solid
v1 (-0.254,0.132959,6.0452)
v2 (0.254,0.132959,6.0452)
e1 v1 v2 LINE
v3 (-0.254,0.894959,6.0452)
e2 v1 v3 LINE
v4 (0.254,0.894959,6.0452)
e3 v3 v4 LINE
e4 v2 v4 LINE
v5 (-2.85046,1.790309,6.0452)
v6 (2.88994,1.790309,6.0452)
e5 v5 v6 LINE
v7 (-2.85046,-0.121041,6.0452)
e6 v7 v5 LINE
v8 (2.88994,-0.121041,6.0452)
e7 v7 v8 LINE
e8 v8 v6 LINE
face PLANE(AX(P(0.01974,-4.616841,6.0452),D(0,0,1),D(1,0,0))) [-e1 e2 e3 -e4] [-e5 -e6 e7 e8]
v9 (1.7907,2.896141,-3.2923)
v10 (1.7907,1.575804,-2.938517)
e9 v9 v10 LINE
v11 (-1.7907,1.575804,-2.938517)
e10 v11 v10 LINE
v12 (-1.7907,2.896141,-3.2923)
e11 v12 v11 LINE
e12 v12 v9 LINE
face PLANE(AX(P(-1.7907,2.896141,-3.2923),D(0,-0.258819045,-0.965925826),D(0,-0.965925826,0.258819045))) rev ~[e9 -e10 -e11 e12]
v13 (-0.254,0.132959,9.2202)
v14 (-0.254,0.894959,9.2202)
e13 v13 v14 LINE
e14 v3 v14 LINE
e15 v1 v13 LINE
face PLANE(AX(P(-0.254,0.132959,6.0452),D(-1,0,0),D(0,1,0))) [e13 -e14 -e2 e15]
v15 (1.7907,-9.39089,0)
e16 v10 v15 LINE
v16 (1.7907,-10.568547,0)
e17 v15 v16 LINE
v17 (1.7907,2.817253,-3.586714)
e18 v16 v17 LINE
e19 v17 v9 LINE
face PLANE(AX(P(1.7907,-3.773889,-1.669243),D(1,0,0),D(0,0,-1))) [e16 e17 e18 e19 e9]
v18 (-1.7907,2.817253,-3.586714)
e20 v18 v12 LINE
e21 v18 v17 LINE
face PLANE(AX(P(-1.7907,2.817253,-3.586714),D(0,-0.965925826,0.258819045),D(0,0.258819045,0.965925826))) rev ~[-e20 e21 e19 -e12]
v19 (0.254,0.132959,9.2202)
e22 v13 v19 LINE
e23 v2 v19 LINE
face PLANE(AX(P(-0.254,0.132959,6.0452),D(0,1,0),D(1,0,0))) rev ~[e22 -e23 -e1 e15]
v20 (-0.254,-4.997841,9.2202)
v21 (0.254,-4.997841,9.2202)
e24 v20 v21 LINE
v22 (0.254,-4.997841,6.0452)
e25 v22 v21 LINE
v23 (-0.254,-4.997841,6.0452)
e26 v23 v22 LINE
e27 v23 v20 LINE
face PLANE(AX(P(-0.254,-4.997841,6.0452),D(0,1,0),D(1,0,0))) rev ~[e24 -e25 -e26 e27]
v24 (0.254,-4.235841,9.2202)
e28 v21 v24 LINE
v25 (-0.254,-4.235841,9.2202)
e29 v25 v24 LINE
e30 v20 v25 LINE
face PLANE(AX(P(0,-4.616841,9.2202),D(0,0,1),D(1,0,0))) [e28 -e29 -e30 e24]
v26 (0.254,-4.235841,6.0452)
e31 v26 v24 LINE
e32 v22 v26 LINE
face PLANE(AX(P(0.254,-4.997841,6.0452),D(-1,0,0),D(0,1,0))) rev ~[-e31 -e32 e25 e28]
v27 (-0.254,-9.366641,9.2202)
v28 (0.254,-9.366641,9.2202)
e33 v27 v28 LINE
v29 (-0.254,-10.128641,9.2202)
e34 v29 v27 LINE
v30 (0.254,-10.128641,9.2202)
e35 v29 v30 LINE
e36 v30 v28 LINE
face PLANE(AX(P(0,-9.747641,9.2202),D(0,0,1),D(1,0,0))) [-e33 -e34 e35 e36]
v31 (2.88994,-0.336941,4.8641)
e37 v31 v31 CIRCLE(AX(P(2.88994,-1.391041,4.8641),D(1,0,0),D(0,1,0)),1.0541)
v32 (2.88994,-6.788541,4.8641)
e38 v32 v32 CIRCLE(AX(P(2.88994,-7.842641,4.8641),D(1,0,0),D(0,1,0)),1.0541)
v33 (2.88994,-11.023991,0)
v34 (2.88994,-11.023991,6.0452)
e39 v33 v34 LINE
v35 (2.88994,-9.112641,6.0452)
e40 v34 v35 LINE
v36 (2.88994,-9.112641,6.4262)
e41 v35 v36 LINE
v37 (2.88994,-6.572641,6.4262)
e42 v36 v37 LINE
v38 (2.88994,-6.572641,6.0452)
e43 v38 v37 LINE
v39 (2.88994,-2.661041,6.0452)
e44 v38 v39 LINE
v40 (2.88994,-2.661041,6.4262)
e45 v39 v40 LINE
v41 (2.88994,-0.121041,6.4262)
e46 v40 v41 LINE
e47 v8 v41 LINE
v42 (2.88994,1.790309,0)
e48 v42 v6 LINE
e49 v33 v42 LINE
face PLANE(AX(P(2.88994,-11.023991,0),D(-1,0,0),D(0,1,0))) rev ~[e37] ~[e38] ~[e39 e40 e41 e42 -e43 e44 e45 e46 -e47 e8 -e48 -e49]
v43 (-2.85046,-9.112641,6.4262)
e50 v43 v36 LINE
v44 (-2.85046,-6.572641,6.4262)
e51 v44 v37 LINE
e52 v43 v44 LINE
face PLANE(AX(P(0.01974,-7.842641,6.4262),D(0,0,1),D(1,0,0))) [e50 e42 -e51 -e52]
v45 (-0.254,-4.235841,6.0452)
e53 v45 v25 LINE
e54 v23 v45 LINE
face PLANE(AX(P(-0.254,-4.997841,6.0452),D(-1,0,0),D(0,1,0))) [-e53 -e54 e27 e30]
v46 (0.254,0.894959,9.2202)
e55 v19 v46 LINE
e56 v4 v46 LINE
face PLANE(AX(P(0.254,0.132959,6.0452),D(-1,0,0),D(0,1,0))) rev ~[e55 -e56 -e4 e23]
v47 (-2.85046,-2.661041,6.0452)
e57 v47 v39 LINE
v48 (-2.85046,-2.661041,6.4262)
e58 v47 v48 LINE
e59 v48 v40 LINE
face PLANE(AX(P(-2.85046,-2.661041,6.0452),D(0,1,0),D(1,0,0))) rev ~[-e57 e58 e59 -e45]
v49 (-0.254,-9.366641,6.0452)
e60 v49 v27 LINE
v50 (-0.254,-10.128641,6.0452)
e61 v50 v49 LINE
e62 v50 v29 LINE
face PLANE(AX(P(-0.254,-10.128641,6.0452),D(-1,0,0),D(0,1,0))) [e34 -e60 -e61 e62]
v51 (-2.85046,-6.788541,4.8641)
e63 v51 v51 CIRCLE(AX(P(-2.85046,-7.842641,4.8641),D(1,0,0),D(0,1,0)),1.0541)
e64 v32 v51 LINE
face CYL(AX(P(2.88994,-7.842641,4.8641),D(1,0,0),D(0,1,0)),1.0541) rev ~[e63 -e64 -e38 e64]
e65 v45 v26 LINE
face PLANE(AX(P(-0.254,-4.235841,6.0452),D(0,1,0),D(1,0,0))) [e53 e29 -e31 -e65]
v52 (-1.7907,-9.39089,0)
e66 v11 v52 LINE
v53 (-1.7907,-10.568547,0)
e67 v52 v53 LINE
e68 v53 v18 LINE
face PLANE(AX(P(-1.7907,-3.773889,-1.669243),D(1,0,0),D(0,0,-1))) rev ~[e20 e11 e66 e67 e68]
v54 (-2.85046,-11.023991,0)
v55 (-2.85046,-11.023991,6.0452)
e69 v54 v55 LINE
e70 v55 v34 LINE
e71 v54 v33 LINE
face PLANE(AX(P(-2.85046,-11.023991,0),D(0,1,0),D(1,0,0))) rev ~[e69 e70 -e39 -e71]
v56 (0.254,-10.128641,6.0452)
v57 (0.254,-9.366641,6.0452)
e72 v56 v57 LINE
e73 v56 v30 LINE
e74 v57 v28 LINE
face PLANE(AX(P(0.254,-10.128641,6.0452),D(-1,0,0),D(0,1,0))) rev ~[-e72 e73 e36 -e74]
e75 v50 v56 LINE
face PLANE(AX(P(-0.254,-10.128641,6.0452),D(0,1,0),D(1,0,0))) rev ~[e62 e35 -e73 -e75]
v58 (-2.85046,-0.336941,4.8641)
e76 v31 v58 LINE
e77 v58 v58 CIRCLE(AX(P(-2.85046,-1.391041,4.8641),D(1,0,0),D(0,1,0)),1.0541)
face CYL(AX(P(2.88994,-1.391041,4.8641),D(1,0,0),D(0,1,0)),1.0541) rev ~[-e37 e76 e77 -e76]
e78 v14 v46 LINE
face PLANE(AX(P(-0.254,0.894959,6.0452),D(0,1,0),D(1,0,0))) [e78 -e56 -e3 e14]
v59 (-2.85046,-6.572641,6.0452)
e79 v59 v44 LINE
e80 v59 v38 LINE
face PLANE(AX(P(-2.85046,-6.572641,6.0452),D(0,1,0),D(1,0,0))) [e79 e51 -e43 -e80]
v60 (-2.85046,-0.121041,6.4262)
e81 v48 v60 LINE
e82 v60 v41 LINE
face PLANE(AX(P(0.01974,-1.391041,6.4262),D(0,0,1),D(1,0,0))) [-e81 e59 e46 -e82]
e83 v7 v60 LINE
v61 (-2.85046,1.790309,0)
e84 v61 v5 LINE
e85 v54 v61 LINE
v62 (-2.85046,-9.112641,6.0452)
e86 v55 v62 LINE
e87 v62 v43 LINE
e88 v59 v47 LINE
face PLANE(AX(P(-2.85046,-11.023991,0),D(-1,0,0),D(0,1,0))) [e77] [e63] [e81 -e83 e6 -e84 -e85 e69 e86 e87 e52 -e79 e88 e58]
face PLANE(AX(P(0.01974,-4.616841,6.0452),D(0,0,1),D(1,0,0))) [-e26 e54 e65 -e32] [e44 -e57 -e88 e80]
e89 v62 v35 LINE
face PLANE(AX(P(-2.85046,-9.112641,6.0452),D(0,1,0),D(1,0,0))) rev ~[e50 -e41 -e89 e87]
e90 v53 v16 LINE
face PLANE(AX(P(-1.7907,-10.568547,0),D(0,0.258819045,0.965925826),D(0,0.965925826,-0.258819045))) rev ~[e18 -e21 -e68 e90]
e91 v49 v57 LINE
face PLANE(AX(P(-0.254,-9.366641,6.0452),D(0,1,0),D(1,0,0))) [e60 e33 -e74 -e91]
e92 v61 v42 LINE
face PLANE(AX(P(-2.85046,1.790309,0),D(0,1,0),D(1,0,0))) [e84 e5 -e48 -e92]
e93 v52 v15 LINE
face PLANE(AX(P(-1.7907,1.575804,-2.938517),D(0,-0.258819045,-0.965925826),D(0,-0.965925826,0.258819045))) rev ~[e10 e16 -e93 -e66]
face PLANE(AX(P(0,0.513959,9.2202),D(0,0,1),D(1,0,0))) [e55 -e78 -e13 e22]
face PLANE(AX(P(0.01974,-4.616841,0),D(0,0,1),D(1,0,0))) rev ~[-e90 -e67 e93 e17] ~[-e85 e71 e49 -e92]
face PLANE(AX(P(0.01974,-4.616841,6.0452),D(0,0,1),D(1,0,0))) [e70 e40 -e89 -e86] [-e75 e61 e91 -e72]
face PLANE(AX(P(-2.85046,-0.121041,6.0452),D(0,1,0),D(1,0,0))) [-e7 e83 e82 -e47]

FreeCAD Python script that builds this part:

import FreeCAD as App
import Part
import Sketcher
Q = App.Units.Quantity


def add_polygon(sketch, points):
    """Adds a closed chain of lines whose ends are joined by coincident constraints."""
    first, n = sketch.GeometryCount, len(points)
    for a, b in zip(points, points[1:] + points[:1]):
        sketch.addGeometry(Part.LineSegment(App.Vector(*a, 0), App.Vector(*b, 0)), False)
    for i in range(n):
        sketch.addConstraint(Sketcher.Constraint("Coincident", first + i, 2, first + (i + 1) % n, 1))

doc = App.newDocument("Part")
params = doc.addObject("Spreadsheet::Sheet", "Params")
for row, (alias, value) in enumerate([
    ("sketch1_width", "0.226 in"),
    ("pad1_length", "0.238 in"),
    ("sketch2_width", "0.02 in"),
    ("sketch2_height", "0.03 in"),
    ("pad2_length", "0.125 in"),
    ("sketch3_length", "0.012 in"),
    ("pad3_length", "0.141 in"),
    ("sketch4_height", "0.1 in"),
    ("sketch4_width", "0.226 in"),
    ("pad4_length", "0.015 in"),
    ("sketch5_diameter", "0.083 in"),
    ("pocket1_length", "0.35 in"),
], start=1):
    params.set(f"A{row}", alias)
    params.set(f"B{row}", "=" + value)
    params.setAlias(f"B{row}", alias)

body = doc.addObject("PartDesign::Body", "Body")

sketch1 = doc.addObject("Sketcher::SketchObject", "Sketch")
body.addObject(sketch1)
sketch1.AttachmentSupport = (doc.XY_Plane, [""])
sketch1.MapMode = "FlatFace"
add_polygon(sketch1, [(-3, 2), (-3, -11), (3, -11), (3, 2)])
sketch1.addConstraint([
    Sketcher.Constraint("Vertical", 0),
    Sketcher.Constraint("Horizontal", 1),
    Sketcher.Constraint("Vertical", 2),
    Sketcher.Constraint("Horizontal", 3),
    Sketcher.Constraint("DistanceX", 1, 1, 1, 2, Q("0.226 in")),
    Sketcher.Constraint("DistanceY", 0, 2, 0, 1, Q("0.5045 in")),
    Sketcher.Constraint("DistanceX", 0, 2, -1, 1, Q("2.85046 mm")),
    Sketcher.Constraint("DistanceY", 0, 2, -1, 1, Q("11.023991 mm")),
])
sketch1.setExpression("Constraints[8]", "Params.sketch1_width")
pad1 = doc.addObject("PartDesign::Pad", "Pad")
body.addObject(pad1)
pad1.Profile = sketch1
pad1.setExpression("Length", "Params.pad1_length")

sketch2 = doc.addObject("Sketcher::SketchObject", "Sketch001")
body.addObject(sketch2)
sketch2.AttachmentSupport = (doc.XY_Plane, [""])
sketch2.MapMode = "FlatFace"
sketch2.AttachmentOffset = App.Placement(App.Vector(0, 0, 0.238 * 25.4), App.Rotation())
add_polygon(sketch2, [(-0.3, -4.2), (-0.3, -5), (0.3, -5), (0.3, -4.2)])
add_polygon(sketch2, [(-0.3, 0.9), (-0.3, 0.1), (0.3, 0.1), (0.3, 0.9)])
add_polygon(sketch2, [(-0.3, -9.4), (-0.3, -10.1), (0.3, -10.1), (0.3, -9.4)])
sketch2.addConstraint([
    Sketcher.Constraint("Vertical", 0),
    Sketcher.Constraint("Horizontal", 1),
    Sketcher.Constraint("Vertical", 2),
    Sketcher.Constraint("Horizontal", 3),
    Sketcher.Constraint("Vertical", 4),
    Sketcher.Constraint("Horizontal", 5),
    Sketcher.Constraint("Vertical", 6),
    Sketcher.Constraint("Horizontal", 7),
    Sketcher.Constraint("Vertical", 8),
    Sketcher.Constraint("Horizontal", 9),
    Sketcher.Constraint("Vertical", 10),
    Sketcher.Constraint("Horizontal", 11),
    Sketcher.Constraint("Vertical", 3, 2, 4, 2),
    Sketcher.Constraint("Vertical", 2, 2, 5, 2),
    Sketcher.Constraint("Vertical", 7, 2, 8, 2),
    Sketcher.Constraint("Vertical", 6, 2, 9, 2),
    Sketcher.Constraint("Equal", 2, 4),
    Sketcher.Constraint("Equal", 6, 8),
    Sketcher.Constraint("DistanceX", 1, 1, 1, 2, Q("0.02 in")),
    Sketcher.Constraint("DistanceY", 0, 2, 0, 1, Q("0.03 in")),
    Sketcher.Constraint("DistanceX", 0, 2, -1, 1, Q("0.01 in")),
    Sketcher.Constraint("DistanceY", 3, 2, 4, 2, Q("0.172 in")),
    Sketcher.Constraint("DistanceY", 8, 2, 0, 2, Q("0.202 in")),
    Sketcher.Constraint("DistanceY", 0, 2, -1, 1, Q("4.997841 mm")),
])
sketch2.setExpression("Constraints[30]", "Params.sketch2_width")
sketch2.setExpression("Constraints[31]", "Params.sketch2_height")
pad2 = doc.addObject("PartDesign::Pad", "Pad001")
body.addObject(pad2)
pad2.Profile = sketch2
pad2.setExpression("Length", "Params.pad2_length")

sketch3 = doc.addObject("Sketcher::SketchObject", "Sketch002")
body.addObject(sketch3)
sketch3.AttachmentSupport = (doc.YZ_Plane, [""])
sketch3.MapMode = "FlatFace"
sketch3.AttachmentOffset = App.Placement(App.Vector(0, 0, -0.0705 * 25.4), App.Rotation())
add_polygon(sketch3, [(2.82, -3.59), (-10.57, 0), (-9.39, 0), (1.58, -2.94), (2.9, -3.29)])
sketch3.addConstraint([
    Sketcher.Constraint("Horizontal", 1),
    Sketcher.Constraint("PointOnObject", 0, 2, -1),
    Sketcher.Constraint("Parallel", 0, 2),
    Sketcher.Constraint("Parallel", 2, 3),
    Sketcher.Constraint("Perpendicular", 3, 4),
    Sketcher.Constraint("Angle", 0, Q("165 deg")),
    Sketcher.Constraint("Distance", 4, Q("0.012 in")),
    Sketcher.Constraint("DistanceX", 0, 2, 4, 2, Q("0.527 in")),
    Sketcher.Constraint("DistanceX", 1, 2, -1, 1, Q("9.39089 mm")),
    Sketcher.Constraint("DistanceX", 0, 2, 2, 2, Q("12.144351 mm")),
])
sketch3.setExpression("Constraints[11]", "Params.sketch3_length")
pad3 = doc.addObject("PartDesign::Pad", "Pad002")
body.addObject(pad3)
pad3.Profile = sketch3
pad3.setExpression("Length", "Params.pad3_length")

sketch4 = doc.addObject("Sketcher::SketchObject", "Sketch003")
body.addObject(sketch4)
sketch4.AttachmentSupport = (doc.XY_Plane, [""])
sketch4.MapMode = "FlatFace"
sketch4.AttachmentOffset = App.Placement(App.Vector(0, 0, 0.238 * 25.4), App.Rotation())
add_polygon(sketch4, [(-2.9, -0.1), (-2.9, -2.7), (2.9, -2.7), (2.9, -0.1)])
add_polygon(sketch4, [(-2.9, -6.6), (-2.9, -9.1), (2.9, -9.1), (2.9, -6.6)])
sketch4.addConstraint([
    Sketcher.Constraint("Vertical", 0),
    Sketcher.Constraint("Horizontal", 1),
    Sketcher.Constraint("Vertical", 2),
    Sketcher.Constraint("Horizontal", 3),
    Sketcher.Constraint("Vertical", 4),
    Sketcher.Constraint("Horizontal", 5),
    Sketcher.Constraint("Vertical", 6),
    Sketcher.Constraint("Horizontal", 7),
    Sketcher.Constraint("Vertical", 3, 2, 4, 2),
    Sketcher.Constraint("Vertical", 2, 2, 5, 2),
    Sketcher.Constraint("Equal", 2, 4),
    Sketcher.Constraint("DistanceY", 0, 2, 0, 1, Q("0.1 in")),
    Sketcher.Constraint("DistanceX", 1, 1, 1, 2, Q("0.226 in")),
    Sketcher.Constraint("DistanceY", 4, 2, 0, 2, Q("0.254 in")),
    Sketcher.Constraint("DistanceX", 0, 2, -1, 1, Q("2.85046 mm")),
    Sketcher.Constraint("DistanceY", 0, 2, -1, 1, Q("2.661041 mm")),
])
sketch4.setExpression("Constraints[19]", "Params.sketch4_height")
sketch4.setExpression("Constraints[20]", "Params.sketch4_width")
pad4 = doc.addObject("PartDesign::Pad", "Pad003")
body.addObject(pad4)
pad4.Profile = sketch4
pad4.setExpression("Length", "Params.pad4_length")

sketch5 = doc.addObject("Sketcher::SketchObject", "Sketch004")
body.addObject(sketch5)
sketch5.AttachmentSupport = (doc.YZ_Plane, [""])
sketch5.MapMode = "FlatFace"
sketch5.AttachmentOffset = App.Placement(App.Vector(0, 0, 2.88994), App.Rotation())
sketch5.addGeometry([
    Part.Circle(App.Vector(-1.4, 4.9, 0), App.Vector(0, 0, 1), 1.1),
    Part.Circle(App.Vector(-7.8, 4.9, 0), App.Vector(0, 0, 1), 1.1),
], False)
sketch5.addConstraint([
    Sketcher.Constraint("Equal", 0, 1),
    Sketcher.Constraint("Horizontal", 0, 3, 1, 3),
    Sketcher.Constraint("Diameter", 0, Q("0.083 in")),
    Sketcher.Constraint("DistanceX", 1, 3, 0, 3, Q("0.254 in")),
    Sketcher.Constraint("DistanceY", -1, 1, 0, 3, Q("0.1915 in")),
    Sketcher.Constraint("DistanceX", 0, 3, -1, 1, Q("1.391041 mm")),
])
sketch5.setExpression("Constraints[2]", "Params.sketch5_diameter")
pocket1 = doc.addObject("PartDesign::Pocket", "Pocket")
body.addObject(pocket1)
pocket1.Profile = sketch5
pocket1.setExpression("Length", "Params.pocket1_length")

doc.recompute()
